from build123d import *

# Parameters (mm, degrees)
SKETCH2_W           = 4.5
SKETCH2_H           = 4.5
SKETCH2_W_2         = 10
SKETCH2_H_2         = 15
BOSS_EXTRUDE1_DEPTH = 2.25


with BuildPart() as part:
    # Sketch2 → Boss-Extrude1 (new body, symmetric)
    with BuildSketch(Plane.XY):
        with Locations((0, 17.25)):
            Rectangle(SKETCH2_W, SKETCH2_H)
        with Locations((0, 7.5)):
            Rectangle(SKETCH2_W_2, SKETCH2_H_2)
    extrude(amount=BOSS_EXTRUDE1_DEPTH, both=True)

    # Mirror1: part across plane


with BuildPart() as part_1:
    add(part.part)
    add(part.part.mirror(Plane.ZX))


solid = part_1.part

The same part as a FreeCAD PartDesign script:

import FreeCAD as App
import Part
import Sketcher
from FreeCAD import Vector
Q = App.Units.Quantity

doc = App.newDocument("Part")
body = doc.addObject("PartDesign::Body", "Body")

# Sketch on XY plane
sketch1 = body.newObject("Sketcher::SketchObject", "Sketch")
sketch1.AttachmentSupport = (doc.getObject("XY_Plane"), [""])
sketch1.MapMode = "FlatFace"
sketch1.addGeometry([
    Part.LineSegment(Vector(-2.25, 19.5, 0), Vector(-2.25, 15, 0)),  # 0
    Part.LineSegment(Vector(-2.25, 15, 0), Vector(-5, 15, 0)),  # 1
    Part.LineSegment(Vector(-5, 15, 0), Vector(-5, 0, 0)),  # 2
    Part.LineSegment(Vector(-5, 0, 0), Vector(5, 0, 0)),  # 3
    Part.LineSegment(Vector(5, 0, 0), Vector(5, 15, 0)),  # 4
    Part.LineSegment(Vector(5, 15, 0), Vector(2.25, 15, 0)),  # 5
    Part.LineSegment(Vector(2.25, 15, 0), Vector(2.25, 19.5, 0)),  # 6
    Part.LineSegment(Vector(2.25, 19.5, 0), Vector(-2.25, 19.5, 0)),  # 7
], False)
sketch1.addConstraint([
    Sketcher.Constraint("Coincident", 0, 2, 1, 1),
    Sketcher.Constraint("Coincident", 1, 2, 2, 1),
    Sketcher.Constraint("Coincident", 2, 2, 3, 1),
    Sketcher.Constraint("Coincident", 3, 2, 4, 1),
    Sketcher.Constraint("Coincident", 4, 2, 5, 1),
    Sketcher.Constraint("Coincident", 5, 2, 6, 1),
    Sketcher.Constraint("Coincident", 6, 2, 7, 1),
    Sketcher.Constraint("Coincident", 7, 2, 0, 1),
    Sketcher.Constraint("Vertical", 0),
    Sketcher.Constraint("Horizontal", 1),
    Sketcher.Constraint("Vertical", 2),
    Sketcher.Constraint("Horizontal", 3),
    Sketcher.Constraint("Vertical", 4),
    Sketcher.Constraint("Horizontal", 5),
    Sketcher.Constraint("Vertical", 6),
    Sketcher.Constraint("Horizontal", 7),
    Sketcher.Constraint("Symmetric", 2, 2, 3, 2, -1, 1),
    Sketcher.Constraint("Symmetric", 0, 2, 5, 2, -2),
    Sketcher.Constraint("Equal", 7, 0),
    Sketcher.Constraint("DistanceX", 3, 1, 3, 2, Q("10 mm")),
    Sketcher.Constraint("DistanceY", 2, 2, 2, 1, Q("15 mm")),
    Sketcher.Constraint("DistanceX", 7, 2, 7, 1, Q("4.5 mm")),
])
pad1 = body.newObject("PartDesign::Pad", "Pad")
pad1.Profile = sketch1
pad1.Length = 4.5
pad1.Midplane = True
body2 = doc.addObject("PartDesign::Body", "Body001")
doc.recompute()

body2.BaseFeature = body
doc.recompute()

mirroring = doc.addObject("Part::Mirroring", "Mirroring")
mirroring.Source = body
mirroring.Base = Vector(0, 0, 0)
mirroring.Normal = Vector(0, 1, 0)
body3 = doc.addObject("PartDesign::Body", "Body002")
body3.BaseFeature = mirroring
boolean = body2.newObject("PartDesign::Boolean", "Boolean")
boolean.Type = "Fuse"
boolean.addObjects([body3])
doc.recompute()
mirroring.Visibility = False

doc.recompute()
